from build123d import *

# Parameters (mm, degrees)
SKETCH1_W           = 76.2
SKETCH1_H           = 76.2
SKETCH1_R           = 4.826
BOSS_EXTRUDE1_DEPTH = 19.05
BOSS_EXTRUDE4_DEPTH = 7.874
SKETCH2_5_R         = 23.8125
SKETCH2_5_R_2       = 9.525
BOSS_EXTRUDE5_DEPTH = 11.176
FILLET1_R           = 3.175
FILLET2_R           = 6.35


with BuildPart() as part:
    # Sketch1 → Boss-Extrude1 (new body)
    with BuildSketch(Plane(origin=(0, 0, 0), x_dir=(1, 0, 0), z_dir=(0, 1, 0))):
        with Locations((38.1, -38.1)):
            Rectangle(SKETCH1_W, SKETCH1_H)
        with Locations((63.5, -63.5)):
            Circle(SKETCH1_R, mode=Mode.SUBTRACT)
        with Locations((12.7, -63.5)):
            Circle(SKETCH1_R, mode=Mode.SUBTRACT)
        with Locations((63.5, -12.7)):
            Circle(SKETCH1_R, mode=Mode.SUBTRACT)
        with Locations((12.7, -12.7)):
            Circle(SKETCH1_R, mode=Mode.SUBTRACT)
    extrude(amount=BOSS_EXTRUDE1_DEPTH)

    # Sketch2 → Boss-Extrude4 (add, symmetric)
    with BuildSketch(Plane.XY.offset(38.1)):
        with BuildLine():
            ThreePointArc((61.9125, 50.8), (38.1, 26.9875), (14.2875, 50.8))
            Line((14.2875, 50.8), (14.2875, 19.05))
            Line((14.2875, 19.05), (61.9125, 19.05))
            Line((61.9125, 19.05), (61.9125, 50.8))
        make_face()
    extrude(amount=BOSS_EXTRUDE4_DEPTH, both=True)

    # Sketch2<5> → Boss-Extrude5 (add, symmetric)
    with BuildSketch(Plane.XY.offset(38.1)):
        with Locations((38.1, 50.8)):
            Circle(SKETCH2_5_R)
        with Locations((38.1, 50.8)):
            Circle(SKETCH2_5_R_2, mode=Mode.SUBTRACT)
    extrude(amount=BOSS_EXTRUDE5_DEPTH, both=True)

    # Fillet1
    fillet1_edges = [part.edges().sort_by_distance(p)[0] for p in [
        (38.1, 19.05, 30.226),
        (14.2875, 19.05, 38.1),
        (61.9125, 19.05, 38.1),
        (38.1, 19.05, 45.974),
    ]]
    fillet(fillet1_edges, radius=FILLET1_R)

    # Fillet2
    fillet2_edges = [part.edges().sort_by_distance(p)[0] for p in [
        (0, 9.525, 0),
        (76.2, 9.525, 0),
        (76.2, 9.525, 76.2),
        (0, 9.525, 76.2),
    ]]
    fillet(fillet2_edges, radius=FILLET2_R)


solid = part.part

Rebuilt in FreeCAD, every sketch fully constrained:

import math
import FreeCAD as App
import Part
import Sketcher
Q = App.Units.Quantity


def edges_at(feature, points):
    """Names of the edges that pass closest to the given points."""
    edges = feature.Shape.Edges
    near = lambda p: min(range(len(edges)), key=lambda i: edges[i].distToShape(Part.Vertex(*p))[0])
    return sorted({f"Edge{near(p) + 1}" for p in points})

doc = App.newDocument("Part")
body = doc.addObject("PartDesign::Body", "Body")

# Sketch on XZ plane
sketch1 = body.newObject("Sketcher::SketchObject", "Sketch")
sketch1.AttachmentSupport = (doc.getObject("XZ_Plane"), [""])
sketch1.MapMode = "FlatFace"
sketch1.addGeometry(Part.LineSegment(App.Vector(0, 0, 0), App.Vector(0, 76.2, 0)), False)
sketch1.addGeometry(Part.LineSegment(App.Vector(0, 76.2, 0), App.Vector(76.2, 76.2, 0)), False)
sketch1.addGeometry(Part.LineSegment(App.Vector(76.2, 76.2, 0), App.Vector(76.2, 0, 0)), False)
sketch1.addGeometry(Part.LineSegment(App.Vector(76.2, 0, 0), App.Vector(0, 0, 0)), False)
sketch1.addGeometry(Part.Circle(App.Vector(12.7, 63.5, 0), App.Vector(0, 0, 1), 4.8), False)
sketch1.addGeometry(Part.Circle(App.Vector(63.5, 63.5, 0), App.Vector(0, 0, 1), 4.8), False)
sketch1.addGeometry(Part.Circle(App.Vector(12.7, 12.7, 0), App.Vector(0, 0, 1), 4.8), False)
sketch1.addGeometry(Part.Circle(App.Vector(63.5, 12.7, 0), App.Vector(0, 0, 1), 4.8), False)
sketch1.addConstraint(Sketcher.Constraint("Coincident", 0, 2, 1, 1))
sketch1.addConstraint(Sketcher.Constraint("Coincident", 1, 2, 2, 1))
sketch1.addConstraint(Sketcher.Constraint("Coincident", 2, 2, 3, 1))
sketch1.addConstraint(Sketcher.Constraint("Coincident", 3, 2, 0, 1))
sketch1.addConstraint(Sketcher.Constraint("Vertical", 0))
sketch1.addConstraint(Sketcher.Constraint("Horizontal", 1))
sketch1.addConstraint(Sketcher.Constraint("Vertical", 2))
sketch1.addConstraint(Sketcher.Constraint("Horizontal", 3))
sketch1.addConstraint(Sketcher.Constraint("Coincident", 3, 2, -1, 1))
sketch1.addConstraint(Sketcher.Constraint("Equal", 4, 5))
sketch1.addConstraint(Sketcher.Constraint("Equal", 5, 6))
sketch1.addConstraint(Sketcher.Constraint("Equal", 6, 7))
sketch1.addConstraint(Sketcher.Constraint("Horizontal", 4, 3, 5, 3))
sketch1.addConstraint(Sketcher.Constraint("Horizontal", 6, 3, 7, 3))
sketch1.addConstraint(Sketcher.Constraint("Vertical", 4, 3, 6, 3))
sketch1.addConstraint(Sketcher.Constraint("Vertical", 5, 3, 7, 3))
sketch1.addConstraint(Sketcher.Constraint("Equal", 3, 0))
sketch1.addConstraint(Sketcher.Constraint("Diameter", 4, Q("0.38 in")))
sketch1.addConstraint(Sketcher.Constraint("DistanceX", 1, 1, 1, 2, Q("3 in")))
sketch1.addConstraint(Sketcher.Constraint("DistanceX", 4, 3, 5, 3, Q("2 in")))
sketch1.addConstraint(Sketcher.Constraint("DistanceY", 6, 3, 4, 3, Q("2 in")))
sketch1.addConstraint(Sketcher.Constraint("DistanceX", -1, 1, 4, 3, Q("0.5 in")))
sketch1.addConstraint(Sketcher.Constraint("DistanceY", -1, 1, 4, 3, Q("2.5 in")))
pad1 = body.newObject("PartDesign::Pad", "Pad")
pad1.Profile = sketch1
pad1.Length = Q("0.75 in")
pad1.Reversed = True

# Sketch on XY plane
sketch2 = body.newObject("Sketcher::SketchObject", "Sketch001")
sketch2.AttachmentSupport = (doc.getObject("XY_Plane"), [""])
sketch2.MapMode = "FlatFace"
sketch2.AttachmentOffset = App.Placement(App.Vector(0, 0, 1.5 * 25.4), App.Rotation())
sketch2.addGeometry(Part.ArcOfCircle(Part.Circle(App.Vector(38, 51, 0), App.Vector(0, 0, 1), 24), math.radians(180), math.radians(360)), False)
sketch2.addGeometry(Part.LineSegment(App.Vector(14, 51, 0), App.Vector(14, 19, 0)), False)
sketch2.addGeometry(Part.LineSegment(App.Vector(14, 19, 0), App.Vector(62, 19, 0)), False)
sketch2.addGeometry(Part.LineSegment(App.Vector(62, 19, 0), App.Vector(62, 51, 0)), False)
sketch2.addConstraint(Sketcher.Constraint("Tangent", 0, 1, 1, 1))
sketch2.addConstraint(Sketcher.Constraint("Coincident", 1, 2, 2, 1))
sketch2.addConstraint(Sketcher.Constraint("Coincident", 2, 2, 3, 1))
sketch2.addConstraint(Sketcher.Constraint("Tangent", 3, 2, 0, 2))
sketch2.addConstraint(Sketcher.Constraint("Vertical", 1))
sketch2.addConstraint(Sketcher.Constraint("Horizontal", 2))
sketch2.addConstraint(Sketcher.Constraint("Vertical", 3))
sketch2.addConstraint(Sketcher.Constraint("DistanceY", -1, 1, 0, 3, Q("2 in")))
sketch2.addConstraint(Sketcher.Constraint("Radius", 0, Q("0.9375 in")))
sketch2.addConstraint(Sketcher.Constraint("DistanceY", 1, 2, 1, 1, Q("1.25 in")))
sketch2.addConstraint(Sketcher.Constraint("DistanceX", -1, 1, 0, 3, Q("1.5 in")))
pad2 = body.newObject("PartDesign::Pad", "Pad001")
pad2.Profile = sketch2
pad2.Length = Q("0.62 in")
pad2.Midplane = True

# Sketch on XY plane
sketch3 = body.newObject("Sketcher::SketchObject", "Sketch002")
sketch3.AttachmentSupport = (doc.getObject("XY_Plane"), [""])
sketch3.MapMode = "FlatFace"
sketch3.AttachmentOffset = App.Placement(App.Vector(0, 0, 1.5 * 25.4), App.Rotation())
sketch3.addGeometry(Part.Circle(App.Vector(38, 51, 0), App.Vector(0, 0, 1), 24), False)
sketch3.addGeometry(Part.Circle(App.Vector(38, 51, 0), App.Vector(0, 0, 1), 10), False)
sketch3.addConstraint(Sketcher.Constraint("Coincident", 1, 3, 0, 3))
sketch3.addConstraint(Sketcher.Constraint("Diameter", 1, Q("0.75 in")))
sketch3.addConstraint(Sketcher.Constraint("Diameter", 0, Q("1.875 in")))
sketch3.addConstraint(Sketcher.Constraint("DistanceY", -1, 1, 0, 3, Q("2 in")))
sketch3.addConstraint(Sketcher.Constraint("DistanceX", -1, 1, 0, 3, Q("1.5 in")))
pad3 = body.newObject("PartDesign::Pad", "Pad002")
pad3.Profile = sketch3
pad3.Length = Q("0.88 in")
pad3.Midplane = True
doc.recompute()

fillet = body.newObject("PartDesign::Fillet", "Fillet")
fillet.Base = (pad3, edges_at(pad3, [
    (38.1, 19.05, 30.226),
    (14.287, 19.05, 38.1),
    (61.913, 19.05, 38.1),
    (38.1, 19.05, 45.974),
]))
fillet.Radius = Q("0.125 in")
doc.recompute()

fillet2 = body.newObject("PartDesign::Fillet", "Fillet001")
fillet2.Base = (fillet, edges_at(fillet, [
    (0, 9.525, 0),
    (76.2, 9.525, 0),
    (76.2, 9.525, 76.2),
    (0, 9.525, 76.2),
]))
fillet2.Radius = Q("0.25 in")

doc.recompute()
